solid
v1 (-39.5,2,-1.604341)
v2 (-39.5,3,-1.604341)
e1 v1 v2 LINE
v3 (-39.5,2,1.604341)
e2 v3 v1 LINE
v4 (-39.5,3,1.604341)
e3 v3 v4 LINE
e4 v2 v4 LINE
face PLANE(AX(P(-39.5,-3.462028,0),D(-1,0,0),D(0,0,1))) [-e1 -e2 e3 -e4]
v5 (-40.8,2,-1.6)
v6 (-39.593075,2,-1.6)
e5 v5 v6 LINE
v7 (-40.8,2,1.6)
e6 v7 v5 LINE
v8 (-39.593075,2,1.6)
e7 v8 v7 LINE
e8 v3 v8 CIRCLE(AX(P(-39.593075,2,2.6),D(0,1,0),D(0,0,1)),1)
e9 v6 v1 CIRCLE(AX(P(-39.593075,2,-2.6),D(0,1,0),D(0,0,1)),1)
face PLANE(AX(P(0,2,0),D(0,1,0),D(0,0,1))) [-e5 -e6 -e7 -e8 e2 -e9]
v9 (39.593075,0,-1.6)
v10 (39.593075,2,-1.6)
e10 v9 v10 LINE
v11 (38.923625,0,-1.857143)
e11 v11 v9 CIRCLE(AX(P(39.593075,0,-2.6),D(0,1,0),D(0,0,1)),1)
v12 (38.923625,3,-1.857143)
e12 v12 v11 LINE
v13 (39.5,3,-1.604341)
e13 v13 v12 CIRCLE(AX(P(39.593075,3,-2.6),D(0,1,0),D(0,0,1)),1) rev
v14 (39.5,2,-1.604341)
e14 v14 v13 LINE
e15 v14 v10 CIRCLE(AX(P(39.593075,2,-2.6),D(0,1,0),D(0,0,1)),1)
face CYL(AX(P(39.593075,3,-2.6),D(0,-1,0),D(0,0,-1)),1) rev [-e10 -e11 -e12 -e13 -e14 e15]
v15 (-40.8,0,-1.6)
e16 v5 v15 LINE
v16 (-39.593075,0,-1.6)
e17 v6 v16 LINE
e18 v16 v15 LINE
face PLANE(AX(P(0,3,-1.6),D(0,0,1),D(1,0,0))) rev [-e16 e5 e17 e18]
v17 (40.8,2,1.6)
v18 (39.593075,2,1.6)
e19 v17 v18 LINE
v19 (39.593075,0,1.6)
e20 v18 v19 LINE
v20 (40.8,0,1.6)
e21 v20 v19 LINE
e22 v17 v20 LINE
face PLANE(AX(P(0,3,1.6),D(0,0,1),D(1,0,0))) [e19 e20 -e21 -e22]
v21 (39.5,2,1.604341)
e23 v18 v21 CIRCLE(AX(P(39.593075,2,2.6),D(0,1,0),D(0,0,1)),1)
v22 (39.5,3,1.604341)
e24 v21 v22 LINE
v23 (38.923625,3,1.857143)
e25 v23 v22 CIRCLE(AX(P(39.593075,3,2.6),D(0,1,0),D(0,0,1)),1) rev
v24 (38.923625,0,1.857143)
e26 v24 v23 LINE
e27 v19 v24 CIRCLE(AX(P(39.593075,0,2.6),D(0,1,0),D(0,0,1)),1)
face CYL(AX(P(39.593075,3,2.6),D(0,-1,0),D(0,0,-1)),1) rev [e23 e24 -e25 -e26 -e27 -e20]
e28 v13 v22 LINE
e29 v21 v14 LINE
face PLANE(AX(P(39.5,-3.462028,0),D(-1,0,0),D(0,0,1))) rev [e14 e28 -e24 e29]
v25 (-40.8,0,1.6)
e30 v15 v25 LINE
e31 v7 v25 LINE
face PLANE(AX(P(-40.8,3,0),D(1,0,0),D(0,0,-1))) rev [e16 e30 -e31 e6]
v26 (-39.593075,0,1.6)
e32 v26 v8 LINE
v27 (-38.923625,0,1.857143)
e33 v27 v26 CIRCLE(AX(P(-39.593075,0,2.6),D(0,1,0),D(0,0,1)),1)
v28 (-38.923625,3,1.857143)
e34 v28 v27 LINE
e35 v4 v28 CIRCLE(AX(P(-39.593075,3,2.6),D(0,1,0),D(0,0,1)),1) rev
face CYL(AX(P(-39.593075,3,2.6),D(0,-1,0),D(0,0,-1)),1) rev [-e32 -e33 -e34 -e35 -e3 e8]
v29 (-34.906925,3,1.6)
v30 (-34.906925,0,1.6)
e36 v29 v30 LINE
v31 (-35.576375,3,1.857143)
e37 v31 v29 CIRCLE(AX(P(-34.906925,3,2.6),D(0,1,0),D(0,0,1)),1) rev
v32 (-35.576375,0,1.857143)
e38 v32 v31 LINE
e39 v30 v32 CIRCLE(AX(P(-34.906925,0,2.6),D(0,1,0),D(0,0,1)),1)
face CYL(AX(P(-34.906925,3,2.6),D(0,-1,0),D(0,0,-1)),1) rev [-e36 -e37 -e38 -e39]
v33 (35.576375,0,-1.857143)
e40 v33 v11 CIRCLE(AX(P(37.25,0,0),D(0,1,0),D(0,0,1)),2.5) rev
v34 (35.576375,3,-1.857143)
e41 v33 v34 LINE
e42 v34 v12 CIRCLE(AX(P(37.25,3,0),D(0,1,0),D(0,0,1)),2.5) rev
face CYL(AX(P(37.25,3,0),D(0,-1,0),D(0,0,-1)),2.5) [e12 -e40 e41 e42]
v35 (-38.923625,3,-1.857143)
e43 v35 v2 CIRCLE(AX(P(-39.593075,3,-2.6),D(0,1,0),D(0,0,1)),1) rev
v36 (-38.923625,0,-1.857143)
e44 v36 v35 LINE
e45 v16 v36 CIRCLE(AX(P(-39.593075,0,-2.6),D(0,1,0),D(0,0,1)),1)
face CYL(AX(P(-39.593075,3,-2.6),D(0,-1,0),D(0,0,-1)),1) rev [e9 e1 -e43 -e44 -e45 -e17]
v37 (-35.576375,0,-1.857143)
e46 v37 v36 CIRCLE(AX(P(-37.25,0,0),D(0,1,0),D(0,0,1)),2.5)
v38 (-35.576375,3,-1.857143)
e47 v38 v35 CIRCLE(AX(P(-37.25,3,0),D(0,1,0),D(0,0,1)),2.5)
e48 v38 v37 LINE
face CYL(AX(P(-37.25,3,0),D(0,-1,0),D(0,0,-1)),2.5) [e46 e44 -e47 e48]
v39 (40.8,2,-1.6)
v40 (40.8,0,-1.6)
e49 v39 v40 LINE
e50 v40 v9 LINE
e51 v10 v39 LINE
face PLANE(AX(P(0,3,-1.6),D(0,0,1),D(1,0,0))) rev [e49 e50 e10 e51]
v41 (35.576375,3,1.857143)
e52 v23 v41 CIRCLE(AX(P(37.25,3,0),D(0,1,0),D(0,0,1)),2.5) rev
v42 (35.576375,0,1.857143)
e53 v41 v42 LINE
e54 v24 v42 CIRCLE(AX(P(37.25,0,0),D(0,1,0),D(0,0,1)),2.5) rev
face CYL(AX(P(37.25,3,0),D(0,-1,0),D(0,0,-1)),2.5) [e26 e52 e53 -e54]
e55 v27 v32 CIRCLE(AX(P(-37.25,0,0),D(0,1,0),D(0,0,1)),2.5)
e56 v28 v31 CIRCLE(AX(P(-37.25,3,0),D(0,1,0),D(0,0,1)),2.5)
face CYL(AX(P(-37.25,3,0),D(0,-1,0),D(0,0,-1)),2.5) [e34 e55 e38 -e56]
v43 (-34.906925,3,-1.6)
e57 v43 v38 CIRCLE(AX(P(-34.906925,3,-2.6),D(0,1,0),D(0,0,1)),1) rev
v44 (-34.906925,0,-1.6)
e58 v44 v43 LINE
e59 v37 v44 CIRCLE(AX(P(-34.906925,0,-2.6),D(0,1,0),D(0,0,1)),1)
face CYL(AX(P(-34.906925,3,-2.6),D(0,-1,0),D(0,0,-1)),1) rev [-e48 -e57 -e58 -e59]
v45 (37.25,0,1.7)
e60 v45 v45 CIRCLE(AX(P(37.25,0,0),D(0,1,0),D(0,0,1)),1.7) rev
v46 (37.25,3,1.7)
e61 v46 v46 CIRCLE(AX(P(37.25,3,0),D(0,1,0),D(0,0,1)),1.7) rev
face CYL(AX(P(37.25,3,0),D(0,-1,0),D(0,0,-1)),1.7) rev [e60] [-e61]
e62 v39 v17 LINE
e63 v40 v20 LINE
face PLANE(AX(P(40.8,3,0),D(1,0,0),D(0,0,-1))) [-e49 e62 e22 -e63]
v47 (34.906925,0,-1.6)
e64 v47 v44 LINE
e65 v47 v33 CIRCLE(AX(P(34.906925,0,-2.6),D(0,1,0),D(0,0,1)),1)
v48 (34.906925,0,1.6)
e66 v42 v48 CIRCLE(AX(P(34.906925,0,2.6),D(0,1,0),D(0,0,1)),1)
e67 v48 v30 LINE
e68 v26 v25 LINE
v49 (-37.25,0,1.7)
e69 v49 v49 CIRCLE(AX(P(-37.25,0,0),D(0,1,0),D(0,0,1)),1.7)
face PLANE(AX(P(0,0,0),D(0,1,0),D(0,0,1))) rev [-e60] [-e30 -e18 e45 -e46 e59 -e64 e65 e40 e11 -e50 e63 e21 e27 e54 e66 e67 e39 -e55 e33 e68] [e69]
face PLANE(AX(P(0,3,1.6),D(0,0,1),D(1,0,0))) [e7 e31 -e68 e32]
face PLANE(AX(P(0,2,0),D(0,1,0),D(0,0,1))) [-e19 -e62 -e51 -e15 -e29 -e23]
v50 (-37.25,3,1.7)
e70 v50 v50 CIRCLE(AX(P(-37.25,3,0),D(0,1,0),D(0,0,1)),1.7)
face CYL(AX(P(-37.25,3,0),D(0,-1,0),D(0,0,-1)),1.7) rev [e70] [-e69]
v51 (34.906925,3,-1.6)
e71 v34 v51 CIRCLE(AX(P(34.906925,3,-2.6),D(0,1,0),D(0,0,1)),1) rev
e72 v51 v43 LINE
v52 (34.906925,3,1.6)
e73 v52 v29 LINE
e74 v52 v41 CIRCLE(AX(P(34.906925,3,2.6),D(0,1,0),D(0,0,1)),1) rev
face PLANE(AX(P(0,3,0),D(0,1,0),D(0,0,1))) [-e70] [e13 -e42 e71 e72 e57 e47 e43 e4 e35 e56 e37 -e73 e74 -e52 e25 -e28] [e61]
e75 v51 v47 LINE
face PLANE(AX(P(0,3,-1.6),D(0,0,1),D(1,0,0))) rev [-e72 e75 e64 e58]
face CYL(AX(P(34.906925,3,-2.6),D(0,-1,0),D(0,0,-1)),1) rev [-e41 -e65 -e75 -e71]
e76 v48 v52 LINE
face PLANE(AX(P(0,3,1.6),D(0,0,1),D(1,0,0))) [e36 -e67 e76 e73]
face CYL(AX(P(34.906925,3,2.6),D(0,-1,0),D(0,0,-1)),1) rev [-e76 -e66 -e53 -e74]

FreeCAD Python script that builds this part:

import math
import FreeCAD as App
import Part
import Sketcher
Q = App.Units.Quantity


def edges_at(feature, points):
    """Names of the edges that pass closest to the given points."""
    edges = feature.Shape.Edges
    near = lambda p: min(range(len(edges)), key=lambda i: edges[i].distToShape(Part.Vertex(*p))[0])
    return sorted({f"Edge{near(p) + 1}" for p in points})

doc = App.newDocument("Part")
body = doc.addObject("PartDesign::Body", "Body")

# Sketch on XZ plane
sketch1 = body.newObject("Sketcher::SketchObject", "Sketch")
sketch1.AttachmentSupport = (doc.getObject("XZ_Plane"), [""])
sketch1.MapMode = "FlatFace"
sketch1.addGeometry(Part.LineSegment(App.Vector(-35.3, 1.6, 0), App.Vector(35.3, 1.6, 0)), False)
sketch1.addGeometry(Part.ArcOfCircle(Part.Circle(App.Vector(37.2, 0, 0), App.Vector(0, 0, 1), 2.5), math.radians(40), math.radians(140)), False)
sketch1.addGeometry(Part.LineSegment(App.Vector(39.2, 1.6, 0), App.Vector(40.8, 1.6, 0)), False)
sketch1.addGeometry(Part.LineSegment(App.Vector(40.8, 1.6, 0), App.Vector(40.8, -1.6, 0)), False)
sketch1.addGeometry(Part.LineSegment(App.Vector(40.8, -1.6, 0), App.Vector(39.2, -1.6, 0)), False)
sketch1.addGeometry(Part.ArcOfCircle(Part.Circle(App.Vector(37.2, 0, 0), App.Vector(0, 0, 1), 2.5), math.radians(-140), math.radians(-40)), False)
sketch1.addGeometry(Part.LineSegment(App.Vector(35.3, -1.6, 0), App.Vector(-35.3, -1.6, 0)), False)
sketch1.addGeometry(Part.ArcOfCircle(Part.Circle(App.Vector(-37.2, 0, 0), App.Vector(0, 0, 1), 2.5), math.radians(-140), math.radians(-40)), False)
sketch1.addGeometry(Part.LineSegment(App.Vector(-39.2, -1.6, 0), App.Vector(-40.8, -1.6, 0)), False)
sketch1.addGeometry(Part.LineSegment(App.Vector(-40.8, -1.6, 0), App.Vector(-40.8, 1.6, 0)), False)
sketch1.addGeometry(Part.LineSegment(App.Vector(-40.8, 1.6, 0), App.Vector(-39.2, 1.6, 0)), False)
sketch1.addGeometry(Part.ArcOfCircle(Part.Circle(App.Vector(-37.2, 0, 0), App.Vector(0, 0, 1), 2.5), math.radians(40), math.radians(140)), False)
sketch1.addGeometry(Part.Circle(App.Vector(-37.2, 0, 0), App.Vector(0, 0, 1), 1.7), False)
sketch1.addGeometry(Part.Circle(App.Vector(37.2, 0, 0), App.Vector(0, 0, 1), 1.7), False)
sketch1.addConstraint(Sketcher.Constraint("Coincident", 0, 2, 1, 2))
sketch1.addConstraint(Sketcher.Constraint("Coincident", 1, 1, 2, 1))
sketch1.addConstraint(Sketcher.Constraint("Coincident", 2, 2, 3, 1))
sketch1.addConstraint(Sketcher.Constraint("Coincident", 3, 2, 4, 1))
sketch1.addConstraint(Sketcher.Constraint("Coincident", 4, 2, 5, 2))
sketch1.addConstraint(Sketcher.Constraint("Coincident", 5, 1, 6, 1))
sketch1.addConstraint(Sketcher.Constraint("Coincident", 6, 2, 7, 2))
sketch1.addConstraint(Sketcher.Constraint("Coincident", 7, 1, 8, 1))
sketch1.addConstraint(Sketcher.Constraint("Coincident", 8, 2, 9, 1))
sketch1.addConstraint(Sketcher.Constraint("Coincident", 9, 2, 10, 1))
sketch1.addConstraint(Sketcher.Constraint("Coincident", 10, 2, 11, 2))
sketch1.addConstraint(Sketcher.Constraint("Coincident", 11, 1, 0, 1))
sketch1.addConstraint(Sketcher.Constraint("Horizontal", 0))
sketch1.addConstraint(Sketcher.Constraint("Horizontal", 2))
sketch1.addConstraint(Sketcher.Constraint("Vertical", 3))
sketch1.addConstraint(Sketcher.Constraint("Horizontal", 4))
sketch1.addConstraint(Sketcher.Constraint("Horizontal", 6))
sketch1.addConstraint(Sketcher.Constraint("Horizontal", 8))
sketch1.addConstraint(Sketcher.Constraint("Vertical", 9))
sketch1.addConstraint(Sketcher.Constraint("Horizontal", 10))
sketch1.addConstraint(Sketcher.Constraint("Coincident", 5, 3, 1, 3))
sketch1.addConstraint(Sketcher.Constraint("Coincident", 11, 3, 7, 3))
sketch1.addConstraint(Sketcher.Constraint("Coincident", 12, 3, 7, 3))
sketch1.addConstraint(Sketcher.Constraint("Coincident", 13, 3, 1, 3))
sketch1.addConstraint(Sketcher.Constraint("Equal", 1, 5))
sketch1.addConstraint(Sketcher.Constraint("Equal", 5, 7))
sketch1.addConstraint(Sketcher.Constraint("Equal", 7, 11))
sketch1.addConstraint(Sketcher.Constraint("Equal", 12, 13))
sketch1.addConstraint(Sketcher.Constraint("Symmetric", 1, 3, 7, 3, -1, 1))
sketch1.addConstraint(Sketcher.Constraint("Symmetric", 2, 2, 8, 2, -1, 1))
sketch1.addConstraint(Sketcher.Constraint("Symmetric", 4, 2, 7, 1, -2))
sketch1.addConstraint(Sketcher.Constraint("Horizontal", 0, 2, 1, 1))
sketch1.addConstraint(Sketcher.Constraint("Horizontal", 4, 2, 5, 1))
sketch1.addConstraint(Sketcher.Constraint("Horizontal", 2, 2, 9, 2))
sketch1.addConstraint(Sketcher.Constraint("Diameter", 12, Q("3.4 mm")))
sketch1.addConstraint(Sketcher.Constraint("Radius", 1, Q("2.5 mm")))
sketch1.addConstraint(Sketcher.Constraint("DistanceY", 3, 2, 3, 1, Q("3.2 mm")))
sketch1.addConstraint(Sketcher.Constraint("DistanceX", -1, 1, 2, 2, Q("40.8 mm")))
sketch1.addConstraint(Sketcher.Constraint("DistanceX", 7, 3, 1, 3, Q("74.5 mm")))
pad1 = body.newObject("PartDesign::Pad", "Pad")
pad1.Profile = sketch1
pad1.Length = 3
pad1.Reversed = True
doc.recompute()

fillet = body.newObject("PartDesign::Fillet", "Fillet")
fillet.Base = (pad1, edges_at(pad1, [
    (-35.329, 1.5, -1.6),
    (35.329, 1.5, -1.6),
    (39.171, 1.5, -1.6),
    (39.171, 1.5, 1.6),
    (35.329, 1.5, 1.6),
    (-35.329, 1.5, 1.6),
    (-39.171, 1.5, 1.6),
    (-39.171, 1.5, -1.6),
]))
fillet.Radius = 1

# Sketch on XZ plane
sketch2 = body.newObject("Sketcher::SketchObject", "Sketch001")
sketch2.AttachmentSupport = (doc.getObject("XZ_Plane"), [""])
sketch2.MapMode = "FlatFace"
sketch2.AttachmentOffset = App.Placement(App.Vector(0, 0, -3), App.Rotation())
sketch2.addGeometry(Part.LineSegment(App.Vector(-39.5, 1.6, 0), App.Vector(-39.5, -1.6, 0)), False)
sketch2.addGeometry(Part.ArcOfCircle(Part.Circle(App.Vector(-39.59, -2.6, 0), App.Vector(0, 0, 1), 1), math.radians(84.66), math.radians(90)), False)
sketch2.addGeometry(Part.LineSegment(App.Vector(-39.59, -1.6, 0), App.Vector(-40.8, -1.6, 0)), False)
sketch2.addGeometry(Part.LineSegment(App.Vector(-40.8, -1.6, 0), App.Vector(-40.8, 1.6, 0)), False)
sketch2.addGeometry(Part.LineSegment(App.Vector(-40.8, 1.6, 0), App.Vector(-39.59, 1.6, 0)), False)
sketch2.addGeometry(Part.ArcOfCircle(Part.Circle(App.Vector(-39.59, 2.6, 0), App.Vector(0, 0, 1), 1), math.radians(-90), math.radians(-84.66)), False)
sketch2.addGeometry(Part.ArcOfCircle(Part.Circle(App.Vector(39.59, -2.6, 0), App.Vector(0, 0, 1), 1), math.radians(90), math.radians(95.34)), False)
sketch2.addGeometry(Part.LineSegment(App.Vector(39.5, -1.6, 0), App.Vector(39.5, 1.6, 0)), False)
sketch2.addGeometry(Part.ArcOfCircle(Part.Circle(App.Vector(39.59, 2.6, 0), App.Vector(0, 0, 1), 1), math.radians(-95.34), math.radians(-90)), False)
sketch2.addGeometry(Part.LineSegment(App.Vector(39.59, 1.6, 0), App.Vector(40.8, 1.6, 0)), False)
sketch2.addGeometry(Part.LineSegment(App.Vector(40.8, 1.6, 0), App.Vector(40.8, -1.6, 0)), False)
sketch2.addGeometry(Part.LineSegment(App.Vector(40.8, -1.6, 0), App.Vector(39.59, -1.6, 0)), False)
sketch2.addConstraint(Sketcher.Constraint("Coincident", 0, 2, 1, 1))
sketch2.addConstraint(Sketcher.Constraint("Tangent", 1, 2, 2, 1))
sketch2.addConstraint(Sketcher.Constraint("Coincident", 2, 2, 3, 1))
sketch2.addConstraint(Sketcher.Constraint("Coincident", 3, 2, 4, 1))
sketch2.addConstraint(Sketcher.Constraint("Tangent", 4, 2, 5, 1))
sketch2.addConstraint(Sketcher.Constraint("Coincident", 5, 2, 0, 1))
sketch2.addConstraint(Sketcher.Constraint("Coincident", 6, 2, 7, 1))
sketch2.addConstraint(Sketcher.Constraint("Coincident", 7, 2, 8, 1))
sketch2.addConstraint(Sketcher.Constraint("Tangent", 8, 2, 9, 1))
sketch2.addConstraint(Sketcher.Constraint("Coincident", 9, 2, 10, 1))
sketch2.addConstraint(Sketcher.Constraint("Coincident", 10, 2, 11, 1))
sketch2.addConstraint(Sketcher.Constraint("Tangent", 11, 2, 6, 1))
sketch2.addConstraint(Sketcher.Constraint("Vertical", 0))
sketch2.addConstraint(Sketcher.Constraint("Horizontal", 2))
sketch2.addConstraint(Sketcher.Constraint("Vertical", 3))
sketch2.addConstraint(Sketcher.Constraint("Horizontal", 4))
sketch2.addConstraint(Sketcher.Constraint("Vertical", 7))
sketch2.addConstraint(Sketcher.Constraint("Horizontal", 9))
sketch2.addConstraint(Sketcher.Constraint("Vertical", 10))
sketch2.addConstraint(Sketcher.Constraint("Horizontal", 11))
sketch2.addConstraint(Sketcher.Constraint("Equal", 1, 5))
sketch2.addConstraint(Sketcher.Constraint("Equal", 5, 6))
sketch2.addConstraint(Sketcher.Constraint("Equal", 6, 8))
sketch2.addConstraint(Sketcher.Constraint("Symmetric", 5, 3, 6, 3, -1, 1))
sketch2.addConstraint(Sketcher.Constraint("Symmetric", 1, 3, 8, 3, -1, 1))
sketch2.addConstraint(Sketcher.Constraint("Symmetric", 1, 3, 6, 3, -2))
sketch2.addConstraint(Sketcher.Constraint("Horizontal", 0, 2, 6, 2))
sketch2.addConstraint(Sketcher.Constraint("Equal", 4, 9))
sketch2.addConstraint(Sketcher.Constraint("Radius", 1, Q("1 mm")))
sketch2.addConstraint(Sketcher.Constraint("DistanceY", 3, 1, 3, 2, Q("3.2 mm")))
sketch2.addConstraint(Sketcher.Constraint("DistanceX", 0, 2, 6, 2, Q("79 mm")))
sketch2.addConstraint(Sketcher.Constraint("DistanceX", 2, 2, -1, 1, Q("40.8 mm")))
sketch2.addConstraint(Sketcher.Constraint("DistanceY", 0, 2, 0, 1, Q("3.208682 mm")))
pocket1 = body.newObject("PartDesign::Pocket", "Pocket")
pocket1.Profile = sketch2
pocket1.Length = 1
pocket1.Reversed = True

doc.recompute()
